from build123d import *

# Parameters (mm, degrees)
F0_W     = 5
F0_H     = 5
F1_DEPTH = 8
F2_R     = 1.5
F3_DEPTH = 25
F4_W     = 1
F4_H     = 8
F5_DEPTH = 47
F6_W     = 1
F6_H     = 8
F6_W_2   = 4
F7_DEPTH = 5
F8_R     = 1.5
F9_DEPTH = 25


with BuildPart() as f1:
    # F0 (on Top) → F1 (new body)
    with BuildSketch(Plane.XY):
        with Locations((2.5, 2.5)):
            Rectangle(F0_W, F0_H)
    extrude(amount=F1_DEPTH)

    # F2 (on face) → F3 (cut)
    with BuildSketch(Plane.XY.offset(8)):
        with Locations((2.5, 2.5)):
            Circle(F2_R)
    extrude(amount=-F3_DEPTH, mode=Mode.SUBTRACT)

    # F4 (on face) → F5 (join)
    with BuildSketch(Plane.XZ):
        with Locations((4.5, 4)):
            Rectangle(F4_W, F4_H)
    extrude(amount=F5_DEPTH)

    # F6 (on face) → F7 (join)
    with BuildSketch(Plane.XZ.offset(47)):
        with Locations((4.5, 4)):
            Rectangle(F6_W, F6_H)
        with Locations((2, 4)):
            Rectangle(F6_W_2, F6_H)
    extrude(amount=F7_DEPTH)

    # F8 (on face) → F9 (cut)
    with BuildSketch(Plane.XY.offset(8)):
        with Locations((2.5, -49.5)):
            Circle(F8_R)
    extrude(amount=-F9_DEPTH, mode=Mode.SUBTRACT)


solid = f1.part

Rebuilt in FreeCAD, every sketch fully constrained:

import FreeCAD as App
import Part
import Sketcher
Q = App.Units.Quantity

doc = App.newDocument("Part")
body = doc.addObject("PartDesign::Body", "Body")

sketch1 = doc.addObject("Sketcher::SketchObject", "Sketch")
body.addObject(sketch1)
sketch1.AttachmentSupport = (doc.XY_Plane, [""])
sketch1.MapMode = "FlatFace"
sketch1.addGeometry([
    Part.LineSegment(App.Vector(0, 5, 0), App.Vector(0, 0, 0)),
    Part.LineSegment(App.Vector(0, 0, 0), App.Vector(5, 0, 0)),
    Part.LineSegment(App.Vector(5, 0, 0), App.Vector(5, 5, 0)),
    Part.LineSegment(App.Vector(5, 5, 0), App.Vector(0, 5, 0)),
], False)
sketch1.addConstraint([
    Sketcher.Constraint("Coincident", 0, 2, 1, 1),
    Sketcher.Constraint("Coincident", 1, 2, 2, 1),
    Sketcher.Constraint("Coincident", 2, 2, 3, 1),
    Sketcher.Constraint("Coincident", 3, 2, 0, 1),
    Sketcher.Constraint("Vertical", 0),
    Sketcher.Constraint("Horizontal", 1),
    Sketcher.Constraint("Vertical", 2),
    Sketcher.Constraint("Horizontal", 3),
    Sketcher.Constraint("Coincident", 0, 2, -1, 1),
    Sketcher.Constraint("Equal", 3, 0),
    Sketcher.Constraint("DistanceX", 1, 1, 1, 2, Q("5 mm")),
])
pad1 = doc.addObject("PartDesign::Pad", "Pad")
body.addObject(pad1)
pad1.Profile = sketch1
pad1.Length = 8

sketch2 = doc.addObject("Sketcher::SketchObject", "Sketch001")
body.addObject(sketch2)
sketch2.AttachmentSupport = (doc.XY_Plane, [""])
sketch2.MapMode = "FlatFace"
sketch2.AttachmentOffset = App.Placement(App.Vector(0, 0, 8), App.Rotation())
sketch2.addGeometry(Part.Circle(App.Vector(2.5, 2.5, 0), App.Vector(0, 0, 1), 1.5), False)
sketch2.addConstraint([
    Sketcher.Constraint("Diameter", 0, Q("3 mm")),
    Sketcher.Constraint("DistanceX", -1, 1, 0, 3, Q("2.5 mm")),
    Sketcher.Constraint("DistanceY", -1, 1, 0, 3, Q("2.5 mm")),
])
pocket1 = doc.addObject("PartDesign::Pocket", "Pocket")
body.addObject(pocket1)
pocket1.Profile = sketch2
pocket1.Length = 25

sketch3 = doc.addObject("Sketcher::SketchObject", "Sketch002")
body.addObject(sketch3)
sketch3.AttachmentSupport = (doc.XZ_Plane, [""])
sketch3.MapMode = "FlatFace"
sketch3.addGeometry([
    Part.LineSegment(App.Vector(4, 8, 0), App.Vector(4, 0, 0)),
    Part.LineSegment(App.Vector(4, 0, 0), App.Vector(5, 0, 0)),
    Part.LineSegment(App.Vector(5, 0, 0), App.Vector(5, 8, 0)),
    Part.LineSegment(App.Vector(5, 8, 0), App.Vector(4, 8, 0)),
], False)
sketch3.addConstraint([
    Sketcher.Constraint("Coincident", 0, 2, 1, 1),
    Sketcher.Constraint("Coincident", 1, 2, 2, 1),
    Sketcher.Constraint("Coincident", 2, 2, 3, 1),
    Sketcher.Constraint("Coincident", 3, 2, 0, 1),
    Sketcher.Constraint("Vertical", 0),
    Sketcher.Constraint("Horizontal", 1),
    Sketcher.Constraint("Vertical", 2),
    Sketcher.Constraint("Horizontal", 3),
    Sketcher.Constraint("PointOnObject", 0, 2, -1),
    Sketcher.Constraint("DistanceX", 1, 1, 1, 2, Q("1 mm")),
    Sketcher.Constraint("DistanceY", 0, 2, 0, 1, Q("8 mm")),
    Sketcher.Constraint("DistanceX", -1, 1, 0, 2, Q("4 mm")),
])
pad2 = doc.addObject("PartDesign::Pad", "Pad001")
body.addObject(pad2)
pad2.Profile = sketch3
pad2.Length = 47

sketch4 = doc.addObject("Sketcher::SketchObject", "Sketch003")
body.addObject(sketch4)
sketch4.AttachmentSupport = (doc.XZ_Plane, [""])
sketch4.MapMode = "FlatFace"
sketch4.AttachmentOffset = App.Placement(App.Vector(0, 0, 47), App.Rotation())
sketch4.addGeometry([
    Part.LineSegment(App.Vector(5, 0, 0), App.Vector(5, 8, 0)),
    Part.LineSegment(App.Vector(5, 8, 0), App.Vector(0, 8, 0)),
    Part.LineSegment(App.Vector(0, 8, 0), App.Vector(0, 0, 0)),
    Part.LineSegment(App.Vector(0, 0, 0), App.Vector(5, 0, 0)),
], False)
sketch4.addConstraint([
    Sketcher.Constraint("Coincident", 0, 2, 1, 1),
    Sketcher.Constraint("Coincident", 1, 2, 2, 1),
    Sketcher.Constraint("Coincident", 2, 2, 3, 1),
    Sketcher.Constraint("Coincident", 3, 2, 0, 1),
    Sketcher.Constraint("Vertical", 0),
    Sketcher.Constraint("Horizontal", 1),
    Sketcher.Constraint("Vertical", 2),
    Sketcher.Constraint("Horizontal", 3),
    Sketcher.Constraint("Coincident", 2, 2, -1, 1),
    Sketcher.Constraint("DistanceX", 1, 2, 1, 1, Q("5 mm")),
    Sketcher.Constraint("DistanceY", 0, 1, 0, 2, Q("8 mm")),
])
pad3 = doc.addObject("PartDesign::Pad", "Pad002")
body.addObject(pad3)
pad3.Profile = sketch4
pad3.Length = 5

sketch5 = doc.addObject("Sketcher::SketchObject", "Sketch004")
body.addObject(sketch5)
sketch5.AttachmentSupport = (doc.XY_Plane, [""])
sketch5.MapMode = "FlatFace"
sketch5.AttachmentOffset = App.Placement(App.Vector(0, 0, 8), App.Rotation())
sketch5.addGeometry(Part.Circle(App.Vector(2.5, -49.5, 0), App.Vector(0, 0, 1), 1.5), False)
sketch5.addConstraint([
    Sketcher.Constraint("Diameter", 0, Q("3 mm")),
    Sketcher.Constraint("DistanceX", -1, 1, 0, 3, Q("2.5 mm")),
    Sketcher.Constraint("DistanceY", 0, 3, -1, 1, Q("49.5 mm")),
])
pocket2 = doc.addObject("PartDesign::Pocket", "Pocket001")
body.addObject(pocket2)
pocket2.Profile = sketch5
pocket2.Length = 25

doc.recompute()
